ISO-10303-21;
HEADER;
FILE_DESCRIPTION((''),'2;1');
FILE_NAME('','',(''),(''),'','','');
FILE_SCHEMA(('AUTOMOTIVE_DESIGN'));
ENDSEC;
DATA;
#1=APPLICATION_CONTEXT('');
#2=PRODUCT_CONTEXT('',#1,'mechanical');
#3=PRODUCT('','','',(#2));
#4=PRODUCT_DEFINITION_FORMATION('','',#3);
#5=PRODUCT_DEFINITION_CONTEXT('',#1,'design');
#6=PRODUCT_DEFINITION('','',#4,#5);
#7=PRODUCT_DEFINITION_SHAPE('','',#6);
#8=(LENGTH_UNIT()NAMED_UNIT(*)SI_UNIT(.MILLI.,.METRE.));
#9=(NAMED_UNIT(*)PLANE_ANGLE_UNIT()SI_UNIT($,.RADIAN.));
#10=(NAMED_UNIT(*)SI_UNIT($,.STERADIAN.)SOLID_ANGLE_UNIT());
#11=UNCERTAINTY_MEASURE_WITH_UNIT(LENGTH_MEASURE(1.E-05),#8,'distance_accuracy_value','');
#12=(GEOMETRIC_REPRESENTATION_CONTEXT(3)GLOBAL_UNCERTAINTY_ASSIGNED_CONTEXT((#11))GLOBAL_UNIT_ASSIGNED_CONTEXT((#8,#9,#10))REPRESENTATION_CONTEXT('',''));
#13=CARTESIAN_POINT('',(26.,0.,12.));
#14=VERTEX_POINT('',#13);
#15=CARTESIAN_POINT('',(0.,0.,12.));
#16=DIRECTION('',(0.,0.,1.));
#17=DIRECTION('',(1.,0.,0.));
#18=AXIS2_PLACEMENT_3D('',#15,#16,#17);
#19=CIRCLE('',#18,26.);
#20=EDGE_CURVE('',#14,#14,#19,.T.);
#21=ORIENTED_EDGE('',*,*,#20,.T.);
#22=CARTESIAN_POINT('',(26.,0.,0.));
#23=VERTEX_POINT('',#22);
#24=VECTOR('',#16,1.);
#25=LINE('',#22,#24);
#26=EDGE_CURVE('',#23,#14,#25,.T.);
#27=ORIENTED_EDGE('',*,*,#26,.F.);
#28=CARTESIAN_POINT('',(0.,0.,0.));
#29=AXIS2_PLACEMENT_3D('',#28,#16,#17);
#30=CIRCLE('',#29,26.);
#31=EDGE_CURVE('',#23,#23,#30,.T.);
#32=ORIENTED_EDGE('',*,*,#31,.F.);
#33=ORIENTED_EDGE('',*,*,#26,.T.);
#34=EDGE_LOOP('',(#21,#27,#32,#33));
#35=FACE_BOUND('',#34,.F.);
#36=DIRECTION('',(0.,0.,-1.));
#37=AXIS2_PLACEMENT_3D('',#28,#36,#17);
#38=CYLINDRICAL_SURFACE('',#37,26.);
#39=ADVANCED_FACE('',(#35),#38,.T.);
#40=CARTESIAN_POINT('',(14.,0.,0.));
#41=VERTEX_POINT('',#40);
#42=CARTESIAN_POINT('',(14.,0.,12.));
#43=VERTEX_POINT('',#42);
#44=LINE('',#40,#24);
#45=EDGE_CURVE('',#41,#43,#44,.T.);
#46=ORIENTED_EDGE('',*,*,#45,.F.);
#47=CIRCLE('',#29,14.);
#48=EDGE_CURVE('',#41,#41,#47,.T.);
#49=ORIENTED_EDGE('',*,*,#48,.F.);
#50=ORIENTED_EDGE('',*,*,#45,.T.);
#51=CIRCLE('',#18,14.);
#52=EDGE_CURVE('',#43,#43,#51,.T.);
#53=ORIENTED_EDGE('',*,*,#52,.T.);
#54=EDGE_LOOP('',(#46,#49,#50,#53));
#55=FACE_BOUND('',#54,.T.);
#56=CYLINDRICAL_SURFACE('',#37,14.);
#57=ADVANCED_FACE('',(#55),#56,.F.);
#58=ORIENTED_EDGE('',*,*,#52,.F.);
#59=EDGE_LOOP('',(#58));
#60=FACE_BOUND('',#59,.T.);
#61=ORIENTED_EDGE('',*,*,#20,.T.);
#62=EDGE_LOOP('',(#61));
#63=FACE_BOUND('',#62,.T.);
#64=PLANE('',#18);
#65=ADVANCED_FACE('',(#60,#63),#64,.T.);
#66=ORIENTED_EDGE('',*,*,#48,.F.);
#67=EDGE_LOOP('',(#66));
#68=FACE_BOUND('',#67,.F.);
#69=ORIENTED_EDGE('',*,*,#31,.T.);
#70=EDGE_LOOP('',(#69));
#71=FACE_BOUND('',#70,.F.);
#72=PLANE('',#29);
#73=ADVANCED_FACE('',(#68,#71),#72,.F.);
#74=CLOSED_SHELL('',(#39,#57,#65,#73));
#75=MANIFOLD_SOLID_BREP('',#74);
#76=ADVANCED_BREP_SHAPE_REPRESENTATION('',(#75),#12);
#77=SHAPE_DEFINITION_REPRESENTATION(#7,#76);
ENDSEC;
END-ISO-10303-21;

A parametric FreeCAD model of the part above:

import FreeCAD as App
import Part
import Sketcher

V = App.Vector

doc = App.newDocument("Part")
body = doc.addObject("PartDesign::Body", "Body")

# Sketch on XY plane
sketch1 = doc.addObject("Sketcher::SketchObject", "Sketch")
body.addObject(sketch1)
sketch1.AttachmentSupport = (doc.XY_Plane, [""])
sketch1.MapMode = "FlatFace"
sketch1.addGeometry([
    Part.Circle(V(0, 0, 0), V(0, 0, 1), 26),
    Part.Circle(V(0, 0, 0), V(0, 0, 1), 14),
], False)
sketch1.addConstraint([
    Sketcher.Constraint("Coincident", 0, 3, -1, 1),
    Sketcher.Constraint("Coincident", 1, 3, -1, 1),
    Sketcher.Constraint("Diameter", 0, 52.0),
    Sketcher.Constraint("Diameter", 1, 28.0),
])
pad1 = doc.addObject("PartDesign::Pad", "Pad")
body.addObject(pad1)
pad1.Profile = sketch1
pad1.Length = 12

# Sketch on XY plane
sketch2 = doc.addObject("Sketcher::SketchObject", "Sketch001")
body.addObject(sketch2)
sketch2.AttachmentSupport = (doc.XY_Plane, [""])
sketch2.MapMode = "FlatFace"
sketch2.AttachmentOffset = App.Placement(V(0, 0, 12), App.Rotation())
sketch2.addGeometry([
    Part.Circle(V(0, 0, 0), V(0, 0, 1), 48),
    Part.Circle(V(0, 0, 0), V(0, 0, 1), 34),
], False)
sketch2.addConstraint([
    Sketcher.Constraint("Coincident", 0, 3, -1, 1),
    Sketcher.Constraint("Coincident", 1, 3, -1, 1),
    Sketcher.Constraint("Diameter", 0, 96.0),
    Sketcher.Constraint("Diameter", 1, 68.0),
])
pocket1 = doc.addObject("PartDesign::Pocket", "Pocket")
body.addObject(pocket1)
pocket1.Profile = sketch2
pocket1.Length = 5

doc.recompute()
